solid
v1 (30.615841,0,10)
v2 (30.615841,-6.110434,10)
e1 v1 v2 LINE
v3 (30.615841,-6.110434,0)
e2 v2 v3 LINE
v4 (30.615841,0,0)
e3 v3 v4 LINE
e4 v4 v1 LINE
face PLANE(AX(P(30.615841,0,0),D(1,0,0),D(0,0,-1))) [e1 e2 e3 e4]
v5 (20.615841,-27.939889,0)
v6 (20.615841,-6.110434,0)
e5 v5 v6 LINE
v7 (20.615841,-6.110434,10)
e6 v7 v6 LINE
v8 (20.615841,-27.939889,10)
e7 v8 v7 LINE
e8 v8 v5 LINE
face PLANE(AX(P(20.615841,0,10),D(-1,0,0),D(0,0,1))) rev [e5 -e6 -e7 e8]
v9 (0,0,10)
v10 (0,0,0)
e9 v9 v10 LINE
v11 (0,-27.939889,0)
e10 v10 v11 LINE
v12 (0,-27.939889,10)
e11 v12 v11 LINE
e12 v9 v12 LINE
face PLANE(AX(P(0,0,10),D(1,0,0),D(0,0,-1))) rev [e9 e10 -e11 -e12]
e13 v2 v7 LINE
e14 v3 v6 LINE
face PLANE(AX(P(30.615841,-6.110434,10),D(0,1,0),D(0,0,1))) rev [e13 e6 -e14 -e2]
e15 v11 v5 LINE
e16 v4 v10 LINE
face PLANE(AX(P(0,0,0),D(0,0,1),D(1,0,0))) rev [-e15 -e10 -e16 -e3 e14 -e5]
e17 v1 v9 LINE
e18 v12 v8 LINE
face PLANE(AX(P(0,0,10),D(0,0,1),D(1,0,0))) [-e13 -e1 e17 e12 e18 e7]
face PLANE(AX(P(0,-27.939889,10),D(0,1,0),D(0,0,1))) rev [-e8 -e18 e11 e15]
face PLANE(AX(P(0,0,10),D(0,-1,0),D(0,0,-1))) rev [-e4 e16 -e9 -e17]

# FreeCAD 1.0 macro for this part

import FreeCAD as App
import Part
import Sketcher
from FreeCAD import Vector

doc = App.newDocument("Part")
params = doc.addObject("Spreadsheet::Sheet", "Params")
for row, (alias, value) in enumerate([
    ("pad1_length", "10 mm"),
    ("sketch2_height", "10 mm"),
    ("pad2_length", "10 mm"),
], start=1):
    params.set(f"A{row}", alias)
    params.set(f"B{row}", "=" + value)
    params.setAlias(f"B{row}", alias)

body = doc.addObject("PartDesign::Body", "Body")

# Sketch on XY plane
sketch1 = body.newObject("Sketcher::SketchObject", "Sketch")
sketch1.AttachmentSupport = (doc.getObject("XY_Plane"), [""])
sketch1.MapMode = "FlatFace"
sketch1.addGeometry([
    Part.LineSegment(Vector(0, 0, 0), Vector(0, -28, 0)),
    Part.LineSegment(Vector(0, -28, 0), Vector(21, -28, 0)),
    Part.LineSegment(Vector(21, -28, 0), Vector(21, 0, 0)),
    Part.LineSegment(Vector(21, 0, 0), Vector(0, 0, 0)),
], False)
sketch1.addConstraint([
    Sketcher.Constraint("Coincident", 0, 2, 1, 1),
    Sketcher.Constraint("Coincident", 1, 2, 2, 1),
    Sketcher.Constraint("Coincident", 2, 2, 3, 1),
    Sketcher.Constraint("Coincident", 3, 2, 0, 1),
    Sketcher.Constraint("Vertical", 0),
    Sketcher.Constraint("Horizontal", 1),
    Sketcher.Constraint("Vertical", 2),
    Sketcher.Constraint("Horizontal", 3),
    Sketcher.Constraint("Coincident", 3, 2, -1, 1),
    Sketcher.Constraint("DistanceX", 1, 1, 1, 2, 20.615841),
    Sketcher.Constraint("DistanceY", 0, 2, 0, 1, 27.939889),
])
pad1 = body.newObject("PartDesign::Pad", "Pad")
pad1.Profile = sketch1
pad1.setExpression("Length", "Params.pad1_length")

# Sketch on YZ plane
sketch2 = body.newObject("Sketcher::SketchObject", "Sketch001")
sketch2.AttachmentSupport = (doc.getObject("YZ_Plane"), [""])
sketch2.MapMode = "FlatFace"
sketch2.AttachmentOffset = App.Placement(Vector(0, 0, 20.615841), App.Rotation())
sketch2.addGeometry([
    Part.LineSegment(Vector(0, 10, 0), Vector(-6, 10, 0)),
    Part.LineSegment(Vector(-6, 10, 0), Vector(-6, 0, 0)),
    Part.LineSegment(Vector(-6, 0, 0), Vector(0, 0, 0)),
    Part.LineSegment(Vector(0, 0, 0), Vector(0, 10, 0)),
], False)
sketch2.addConstraint([
    Sketcher.Constraint("Coincident", 0, 2, 1, 1),
    Sketcher.Constraint("Coincident", 1, 2, 2, 1),
    Sketcher.Constraint("Coincident", 2, 2, 3, 1),
    Sketcher.Constraint("Coincident", 3, 2, 0, 1),
    Sketcher.Constraint("Horizontal", 0),
    Sketcher.Constraint("Vertical", 1),
    Sketcher.Constraint("Horizontal", 2),
    Sketcher.Constraint("Vertical", 3),
    Sketcher.Constraint("Coincident", 2, 2, -1, 1),
    Sketcher.Constraint("DistanceY", 1, 2, 1, 1, 10.0),
    Sketcher.Constraint("DistanceX", 0, 2, 0, 1, 6.110434),
])
sketch2.setExpression("Constraints[9]", "Params.sketch2_height")
pad2 = body.newObject("PartDesign::Pad", "Pad001")
pad2.Profile = sketch2
pad2.setExpression("Length", "Params.pad2_length")

doc.recompute()
